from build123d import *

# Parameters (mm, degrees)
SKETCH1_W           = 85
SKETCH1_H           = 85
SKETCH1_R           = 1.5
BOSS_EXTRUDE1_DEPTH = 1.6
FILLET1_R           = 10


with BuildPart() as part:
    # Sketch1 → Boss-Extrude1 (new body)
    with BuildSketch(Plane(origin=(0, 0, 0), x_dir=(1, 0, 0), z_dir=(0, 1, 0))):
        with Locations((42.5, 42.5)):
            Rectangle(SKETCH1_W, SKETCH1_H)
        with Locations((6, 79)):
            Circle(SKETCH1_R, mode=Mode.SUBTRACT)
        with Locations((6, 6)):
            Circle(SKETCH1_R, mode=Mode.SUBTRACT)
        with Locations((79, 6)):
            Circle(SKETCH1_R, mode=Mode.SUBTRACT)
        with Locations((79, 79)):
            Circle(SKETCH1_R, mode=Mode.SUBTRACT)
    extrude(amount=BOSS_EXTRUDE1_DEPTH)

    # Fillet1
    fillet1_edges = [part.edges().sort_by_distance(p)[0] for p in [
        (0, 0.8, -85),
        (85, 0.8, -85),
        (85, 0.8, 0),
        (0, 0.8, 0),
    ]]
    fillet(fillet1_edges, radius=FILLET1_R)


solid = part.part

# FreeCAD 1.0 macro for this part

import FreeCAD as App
import Part
import Sketcher

V = App.Vector


def edges_at(feature, points):
    """Names of the edges that pass closest to the given points."""
    edges = feature.Shape.Edges
    near = lambda p: min(range(len(edges)), key=lambda i: edges[i].distToShape(Part.Vertex(*p))[0])
    return sorted({f"Edge{near(p) + 1}" for p in points})


def add_polygon(sketch, points):
    """Adds a closed chain of lines whose ends are joined by coincident constraints."""
    first, n = sketch.GeometryCount, len(points)
    for a, b in zip(points, points[1:] + points[:1]):
        sketch.addGeometry(Part.LineSegment(App.Vector(*a, 0), App.Vector(*b, 0)), False)
    for i in range(n):
        sketch.addConstraint(Sketcher.Constraint("Coincident", first + i, 2, first + (i + 1) % n, 1))

doc = App.newDocument("Part")
body = doc.addObject("PartDesign::Body", "Body")

sketch1 = body.newObject("Sketcher::SketchObject", "Sketch")
sketch1.AttachmentSupport = (doc.getObject("XZ_Plane"), [""])
sketch1.MapMode = "FlatFace"
add_polygon(sketch1, [(0, -85), (0, 0), (85, 0), (85, -85)])
sketch1.addGeometry(Part.Circle(V(6, -6, 0), V(0, 0, 1), 1.5), False)
sketch1.addGeometry(Part.Circle(V(79, -6, 0), V(0, 0, 1), 1.5), False)
sketch1.addGeometry(Part.Circle(V(6, -79, 0), V(0, 0, 1), 1.5), False)
sketch1.addGeometry(Part.Circle(V(79, -79, 0), V(0, 0, 1), 1.5), False)
sketch1.addConstraint(Sketcher.Constraint("Vertical", 0))
sketch1.addConstraint(Sketcher.Constraint("Horizontal", 1))
sketch1.addConstraint(Sketcher.Constraint("Vertical", 2))
sketch1.addConstraint(Sketcher.Constraint("Horizontal", 3))
sketch1.addConstraint(Sketcher.Constraint("Coincident", 0, 2, -1, 1))
sketch1.addConstraint(Sketcher.Constraint("Equal", 4, 5))
sketch1.addConstraint(Sketcher.Constraint("Equal", 5, 6))
sketch1.addConstraint(Sketcher.Constraint("Equal", 6, 7))
sketch1.addConstraint(Sketcher.Constraint("Horizontal", 4, 3, 5, 3))
sketch1.addConstraint(Sketcher.Constraint("Horizontal", 6, 3, 7, 3))
sketch1.addConstraint(Sketcher.Constraint("Vertical", 4, 3, 6, 3))
sketch1.addConstraint(Sketcher.Constraint("Vertical", 5, 3, 7, 3))
sketch1.addConstraint(Sketcher.Constraint("Equal", 3, 0))
sketch1.addConstraint(Sketcher.Constraint("Diameter", 4, 3.0))
sketch1.addConstraint(Sketcher.Constraint("DistanceX", 1, 1, 1, 2, 85.0))
sketch1.addConstraint(Sketcher.Constraint("DistanceX", -1, 1, 4, 3, 6.0))
sketch1.addConstraint(Sketcher.Constraint("DistanceY", 4, 3, -1, 1, 6.0))
sketch1.addConstraint(Sketcher.Constraint("DistanceX", -1, 1, 5, 3, 79.0))
sketch1.addConstraint(Sketcher.Constraint("DistanceY", 6, 3, -1, 1, 79.0))
pad1 = body.newObject("PartDesign::Pad", "Pad")
pad1.Profile = sketch1
pad1.Length = 1.6
pad1.Reversed = True
doc.recompute()

fillet = body.newObject("PartDesign::Fillet", "Fillet")
fillet.Base = (pad1, edges_at(pad1, [
    (0, 0.8, -85),
    (85, 0.8, -85),
    (85, 0.8, 0),
    (0, 0.8, 0),
]))
fillet.Radius = 10

doc.recompute()
